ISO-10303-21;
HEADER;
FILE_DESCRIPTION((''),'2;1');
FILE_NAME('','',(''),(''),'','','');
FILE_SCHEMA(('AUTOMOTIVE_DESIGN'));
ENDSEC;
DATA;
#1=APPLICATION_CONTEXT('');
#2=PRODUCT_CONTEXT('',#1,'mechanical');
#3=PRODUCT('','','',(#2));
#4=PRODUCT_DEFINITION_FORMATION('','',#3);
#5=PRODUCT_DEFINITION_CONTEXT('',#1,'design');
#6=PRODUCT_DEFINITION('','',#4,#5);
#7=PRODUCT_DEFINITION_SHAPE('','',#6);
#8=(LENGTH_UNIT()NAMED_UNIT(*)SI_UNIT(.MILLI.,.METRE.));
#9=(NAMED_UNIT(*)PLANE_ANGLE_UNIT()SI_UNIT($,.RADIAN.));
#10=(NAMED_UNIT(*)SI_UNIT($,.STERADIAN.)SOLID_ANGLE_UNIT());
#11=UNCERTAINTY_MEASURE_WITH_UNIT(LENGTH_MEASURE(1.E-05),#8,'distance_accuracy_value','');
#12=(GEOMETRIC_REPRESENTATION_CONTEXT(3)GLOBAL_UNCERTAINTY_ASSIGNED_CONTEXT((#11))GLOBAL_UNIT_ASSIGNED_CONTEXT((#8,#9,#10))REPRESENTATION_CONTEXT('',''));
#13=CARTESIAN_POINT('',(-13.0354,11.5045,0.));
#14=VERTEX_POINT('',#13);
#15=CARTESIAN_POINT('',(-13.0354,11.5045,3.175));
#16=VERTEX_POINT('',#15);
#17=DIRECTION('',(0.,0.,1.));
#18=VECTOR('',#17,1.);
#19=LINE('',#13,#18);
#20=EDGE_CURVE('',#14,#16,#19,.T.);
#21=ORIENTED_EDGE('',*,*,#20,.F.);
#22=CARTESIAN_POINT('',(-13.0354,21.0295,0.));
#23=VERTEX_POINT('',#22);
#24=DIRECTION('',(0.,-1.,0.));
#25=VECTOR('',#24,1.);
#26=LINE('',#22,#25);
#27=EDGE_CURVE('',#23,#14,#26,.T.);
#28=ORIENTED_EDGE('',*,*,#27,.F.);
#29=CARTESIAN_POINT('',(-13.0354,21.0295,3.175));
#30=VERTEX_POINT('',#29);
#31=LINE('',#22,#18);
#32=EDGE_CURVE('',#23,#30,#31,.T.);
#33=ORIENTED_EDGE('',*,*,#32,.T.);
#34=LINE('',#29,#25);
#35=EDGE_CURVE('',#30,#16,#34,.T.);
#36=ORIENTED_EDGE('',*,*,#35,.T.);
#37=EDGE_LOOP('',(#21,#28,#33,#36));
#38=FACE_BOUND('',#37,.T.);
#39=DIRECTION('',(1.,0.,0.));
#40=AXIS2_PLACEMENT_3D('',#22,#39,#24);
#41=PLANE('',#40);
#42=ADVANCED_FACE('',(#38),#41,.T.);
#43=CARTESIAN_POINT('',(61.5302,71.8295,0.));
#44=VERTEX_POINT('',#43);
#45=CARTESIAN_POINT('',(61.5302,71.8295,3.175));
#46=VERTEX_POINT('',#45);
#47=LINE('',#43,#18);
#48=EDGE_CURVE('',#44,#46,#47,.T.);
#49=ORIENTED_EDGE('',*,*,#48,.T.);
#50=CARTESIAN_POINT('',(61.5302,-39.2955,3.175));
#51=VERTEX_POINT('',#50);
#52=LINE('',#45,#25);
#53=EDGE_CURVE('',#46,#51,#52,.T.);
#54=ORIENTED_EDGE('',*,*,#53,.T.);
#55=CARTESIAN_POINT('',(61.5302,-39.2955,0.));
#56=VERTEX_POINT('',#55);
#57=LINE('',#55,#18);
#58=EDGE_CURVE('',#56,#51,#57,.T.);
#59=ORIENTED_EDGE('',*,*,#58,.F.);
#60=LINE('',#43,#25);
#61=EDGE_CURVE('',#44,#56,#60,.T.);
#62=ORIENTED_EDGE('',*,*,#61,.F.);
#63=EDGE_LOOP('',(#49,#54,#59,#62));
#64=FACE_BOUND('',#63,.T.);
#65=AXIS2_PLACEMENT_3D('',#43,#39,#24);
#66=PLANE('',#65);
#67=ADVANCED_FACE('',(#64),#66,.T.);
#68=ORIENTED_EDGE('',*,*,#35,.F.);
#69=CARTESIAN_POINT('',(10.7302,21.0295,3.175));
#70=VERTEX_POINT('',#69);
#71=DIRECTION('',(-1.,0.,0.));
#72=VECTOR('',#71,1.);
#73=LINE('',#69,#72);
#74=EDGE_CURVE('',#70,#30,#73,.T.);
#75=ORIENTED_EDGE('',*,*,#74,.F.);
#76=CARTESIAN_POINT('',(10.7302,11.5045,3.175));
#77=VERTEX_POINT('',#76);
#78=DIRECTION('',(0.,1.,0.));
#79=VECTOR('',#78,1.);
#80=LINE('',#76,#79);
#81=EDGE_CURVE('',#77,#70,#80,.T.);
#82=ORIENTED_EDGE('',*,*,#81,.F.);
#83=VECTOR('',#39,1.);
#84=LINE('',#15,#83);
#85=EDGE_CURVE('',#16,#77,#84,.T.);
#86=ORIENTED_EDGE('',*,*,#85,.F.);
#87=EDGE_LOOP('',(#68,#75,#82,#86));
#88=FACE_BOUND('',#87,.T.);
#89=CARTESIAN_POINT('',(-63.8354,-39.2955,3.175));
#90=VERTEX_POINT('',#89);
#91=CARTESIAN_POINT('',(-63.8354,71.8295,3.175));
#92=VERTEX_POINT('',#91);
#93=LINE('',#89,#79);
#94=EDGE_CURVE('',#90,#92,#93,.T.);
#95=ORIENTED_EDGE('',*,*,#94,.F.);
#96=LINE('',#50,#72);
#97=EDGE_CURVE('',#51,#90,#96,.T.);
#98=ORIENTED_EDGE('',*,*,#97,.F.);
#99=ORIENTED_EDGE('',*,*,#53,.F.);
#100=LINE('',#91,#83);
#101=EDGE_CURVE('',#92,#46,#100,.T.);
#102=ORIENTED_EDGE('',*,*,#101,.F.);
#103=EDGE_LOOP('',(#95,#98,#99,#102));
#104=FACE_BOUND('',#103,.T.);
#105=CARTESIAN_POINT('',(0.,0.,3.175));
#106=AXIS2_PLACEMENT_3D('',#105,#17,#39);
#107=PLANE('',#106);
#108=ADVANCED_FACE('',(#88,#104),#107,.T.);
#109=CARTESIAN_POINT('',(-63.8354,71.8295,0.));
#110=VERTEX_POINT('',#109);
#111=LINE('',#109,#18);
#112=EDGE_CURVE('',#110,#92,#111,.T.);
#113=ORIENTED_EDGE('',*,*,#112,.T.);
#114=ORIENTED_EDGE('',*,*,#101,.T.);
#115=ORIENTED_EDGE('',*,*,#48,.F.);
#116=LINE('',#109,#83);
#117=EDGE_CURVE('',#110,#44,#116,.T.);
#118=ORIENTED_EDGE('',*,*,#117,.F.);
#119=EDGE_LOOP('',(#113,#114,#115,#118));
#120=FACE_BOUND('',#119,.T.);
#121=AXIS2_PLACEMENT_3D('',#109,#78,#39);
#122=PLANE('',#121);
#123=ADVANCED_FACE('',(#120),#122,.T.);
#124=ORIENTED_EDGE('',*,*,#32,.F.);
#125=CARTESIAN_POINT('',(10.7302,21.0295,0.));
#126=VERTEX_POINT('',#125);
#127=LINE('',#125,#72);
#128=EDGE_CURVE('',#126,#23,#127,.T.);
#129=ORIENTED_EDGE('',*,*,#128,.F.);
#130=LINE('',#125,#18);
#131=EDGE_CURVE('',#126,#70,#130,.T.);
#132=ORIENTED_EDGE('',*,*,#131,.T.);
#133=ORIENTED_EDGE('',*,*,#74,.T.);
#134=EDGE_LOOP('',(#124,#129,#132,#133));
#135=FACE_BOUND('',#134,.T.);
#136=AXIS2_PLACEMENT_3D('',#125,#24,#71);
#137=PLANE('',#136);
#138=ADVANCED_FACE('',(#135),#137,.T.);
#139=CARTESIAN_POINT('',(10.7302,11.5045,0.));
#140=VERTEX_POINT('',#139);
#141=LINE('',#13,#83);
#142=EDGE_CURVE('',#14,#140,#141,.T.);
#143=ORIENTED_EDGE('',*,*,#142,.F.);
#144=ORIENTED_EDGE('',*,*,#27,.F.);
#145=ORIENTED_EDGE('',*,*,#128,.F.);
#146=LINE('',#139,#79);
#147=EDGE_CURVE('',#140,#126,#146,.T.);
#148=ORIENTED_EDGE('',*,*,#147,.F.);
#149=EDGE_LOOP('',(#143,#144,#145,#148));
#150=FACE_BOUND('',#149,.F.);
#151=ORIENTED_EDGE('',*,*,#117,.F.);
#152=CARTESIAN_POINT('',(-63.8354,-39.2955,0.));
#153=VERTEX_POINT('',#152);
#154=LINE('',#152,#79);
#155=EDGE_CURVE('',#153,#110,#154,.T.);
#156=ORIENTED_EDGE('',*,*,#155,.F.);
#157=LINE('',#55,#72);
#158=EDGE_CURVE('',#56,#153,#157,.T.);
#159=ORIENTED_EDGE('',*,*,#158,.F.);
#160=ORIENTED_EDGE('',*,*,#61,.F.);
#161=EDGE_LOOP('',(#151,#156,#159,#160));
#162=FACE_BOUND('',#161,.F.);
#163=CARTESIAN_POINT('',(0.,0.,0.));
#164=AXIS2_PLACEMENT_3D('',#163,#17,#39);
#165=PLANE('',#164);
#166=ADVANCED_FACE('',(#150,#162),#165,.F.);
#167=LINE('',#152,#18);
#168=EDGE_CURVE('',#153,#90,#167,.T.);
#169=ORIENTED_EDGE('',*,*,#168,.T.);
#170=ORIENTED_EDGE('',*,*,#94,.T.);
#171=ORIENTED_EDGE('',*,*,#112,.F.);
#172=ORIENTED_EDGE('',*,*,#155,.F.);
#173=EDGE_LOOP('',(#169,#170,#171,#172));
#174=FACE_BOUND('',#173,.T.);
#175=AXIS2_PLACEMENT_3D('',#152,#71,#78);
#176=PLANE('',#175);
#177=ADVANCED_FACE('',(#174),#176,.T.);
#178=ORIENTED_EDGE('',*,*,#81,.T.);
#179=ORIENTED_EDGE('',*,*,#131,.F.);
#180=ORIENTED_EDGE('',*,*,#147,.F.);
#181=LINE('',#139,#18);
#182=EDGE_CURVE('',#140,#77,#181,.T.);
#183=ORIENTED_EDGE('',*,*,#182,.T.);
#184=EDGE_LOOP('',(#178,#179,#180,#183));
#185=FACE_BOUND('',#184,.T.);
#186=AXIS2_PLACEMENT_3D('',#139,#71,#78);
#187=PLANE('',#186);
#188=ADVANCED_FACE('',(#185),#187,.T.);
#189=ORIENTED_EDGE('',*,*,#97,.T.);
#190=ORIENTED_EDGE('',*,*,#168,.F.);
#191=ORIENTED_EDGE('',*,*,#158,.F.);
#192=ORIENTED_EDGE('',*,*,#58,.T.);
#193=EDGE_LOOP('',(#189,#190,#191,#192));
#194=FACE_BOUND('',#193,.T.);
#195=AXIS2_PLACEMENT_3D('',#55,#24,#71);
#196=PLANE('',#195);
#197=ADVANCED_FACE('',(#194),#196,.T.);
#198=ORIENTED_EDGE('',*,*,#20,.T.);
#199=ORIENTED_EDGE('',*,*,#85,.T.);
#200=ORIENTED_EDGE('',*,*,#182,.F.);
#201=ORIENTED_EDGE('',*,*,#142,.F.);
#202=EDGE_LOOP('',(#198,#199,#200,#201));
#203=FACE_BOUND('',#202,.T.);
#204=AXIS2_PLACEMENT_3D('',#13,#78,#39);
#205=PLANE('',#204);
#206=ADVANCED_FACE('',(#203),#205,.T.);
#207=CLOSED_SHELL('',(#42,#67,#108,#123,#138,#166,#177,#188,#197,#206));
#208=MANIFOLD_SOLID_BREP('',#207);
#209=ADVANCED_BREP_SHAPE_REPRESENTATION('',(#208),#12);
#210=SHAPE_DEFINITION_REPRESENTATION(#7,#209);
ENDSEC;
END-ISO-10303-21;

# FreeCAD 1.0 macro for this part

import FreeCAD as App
import Part
import Sketcher
Q = App.Units.Quantity

doc = App.newDocument("Part")
params = doc.addObject("Spreadsheet::Sheet", "Params")
for row, (alias, value) in enumerate([
    ("sketch1_height", "0.375 in"),
    ("pad1_length", "0.125 in"),
], start=1):
    params.set(f"A{row}", alias)
    params.set(f"B{row}", "=" + value)
    params.setAlias(f"B{row}", alias)

body = doc.addObject("PartDesign::Body", "Body")

sketch1 = body.newObject("Sketcher::SketchObject", "Sketch")
sketch1.AttachmentSupport = (doc.getObject("XY_Plane"), [""])
sketch1.MapMode = "FlatFace"
sketch1.addGeometry([
    Part.LineSegment(App.Vector(62, 72, 0), App.Vector(-64, 72, 0)),
    Part.LineSegment(App.Vector(-64, 72, 0), App.Vector(-64, -39, 0)),
    Part.LineSegment(App.Vector(-64, -39, 0), App.Vector(62, -39, 0)),
    Part.LineSegment(App.Vector(62, -39, 0), App.Vector(62, 72, 0)),
    Part.LineSegment(App.Vector(11, 12, 0), App.Vector(-13, 12, 0)),
    Part.LineSegment(App.Vector(-13, 12, 0), App.Vector(-13, 21, 0)),
    Part.LineSegment(App.Vector(-13, 21, 0), App.Vector(11, 21, 0)),
    Part.LineSegment(App.Vector(11, 21, 0), App.Vector(11, 12, 0)),
], False)
sketch1.addConstraint([
    Sketcher.Constraint("Coincident", 0, 2, 1, 1),
    Sketcher.Constraint("Coincident", 1, 2, 2, 1),
    Sketcher.Constraint("Coincident", 2, 2, 3, 1),
    Sketcher.Constraint("Coincident", 3, 2, 0, 1),
    Sketcher.Constraint("Coincident", 4, 2, 5, 1),
    Sketcher.Constraint("Coincident", 5, 2, 6, 1),
    Sketcher.Constraint("Coincident", 6, 2, 7, 1),
    Sketcher.Constraint("Coincident", 7, 2, 4, 1),
    Sketcher.Constraint("Horizontal", 0),
    Sketcher.Constraint("Vertical", 1),
    Sketcher.Constraint("Horizontal", 2),
    Sketcher.Constraint("Vertical", 3),
    Sketcher.Constraint("Horizontal", 4),
    Sketcher.Constraint("Vertical", 5),
    Sketcher.Constraint("Horizontal", 6),
    Sketcher.Constraint("Vertical", 7),
    Sketcher.Constraint("DistanceX", 1, 2, 4, 2, Q("2 in")),
    Sketcher.Constraint("DistanceY", 1, 2, 4, 2, Q("2 in")),
    Sketcher.Constraint("DistanceY", 5, 2, 0, 2, Q("2 in")),
    Sketcher.Constraint("DistanceX", 6, 2, 3, 2, Q("2 in")),
    Sketcher.Constraint("DistanceY", 5, 1, 5, 2, Q("0.375 in")),
    Sketcher.Constraint("DistanceX", 4, 2, 4, 1, 23.7656),
    Sketcher.Constraint("DistanceX", 0, 2, -1, 1, Q("2.5132 in")),
    Sketcher.Constraint("DistanceY", -1, 1, 0, 2, 71.8295),
])
sketch1.setExpression("Constraints[20]", "Params.sketch1_height")
pad1 = body.newObject("PartDesign::Pad", "Pad")
pad1.Profile = sketch1
pad1.setExpression("Length", "Params.pad1_length")

doc.recompute()
